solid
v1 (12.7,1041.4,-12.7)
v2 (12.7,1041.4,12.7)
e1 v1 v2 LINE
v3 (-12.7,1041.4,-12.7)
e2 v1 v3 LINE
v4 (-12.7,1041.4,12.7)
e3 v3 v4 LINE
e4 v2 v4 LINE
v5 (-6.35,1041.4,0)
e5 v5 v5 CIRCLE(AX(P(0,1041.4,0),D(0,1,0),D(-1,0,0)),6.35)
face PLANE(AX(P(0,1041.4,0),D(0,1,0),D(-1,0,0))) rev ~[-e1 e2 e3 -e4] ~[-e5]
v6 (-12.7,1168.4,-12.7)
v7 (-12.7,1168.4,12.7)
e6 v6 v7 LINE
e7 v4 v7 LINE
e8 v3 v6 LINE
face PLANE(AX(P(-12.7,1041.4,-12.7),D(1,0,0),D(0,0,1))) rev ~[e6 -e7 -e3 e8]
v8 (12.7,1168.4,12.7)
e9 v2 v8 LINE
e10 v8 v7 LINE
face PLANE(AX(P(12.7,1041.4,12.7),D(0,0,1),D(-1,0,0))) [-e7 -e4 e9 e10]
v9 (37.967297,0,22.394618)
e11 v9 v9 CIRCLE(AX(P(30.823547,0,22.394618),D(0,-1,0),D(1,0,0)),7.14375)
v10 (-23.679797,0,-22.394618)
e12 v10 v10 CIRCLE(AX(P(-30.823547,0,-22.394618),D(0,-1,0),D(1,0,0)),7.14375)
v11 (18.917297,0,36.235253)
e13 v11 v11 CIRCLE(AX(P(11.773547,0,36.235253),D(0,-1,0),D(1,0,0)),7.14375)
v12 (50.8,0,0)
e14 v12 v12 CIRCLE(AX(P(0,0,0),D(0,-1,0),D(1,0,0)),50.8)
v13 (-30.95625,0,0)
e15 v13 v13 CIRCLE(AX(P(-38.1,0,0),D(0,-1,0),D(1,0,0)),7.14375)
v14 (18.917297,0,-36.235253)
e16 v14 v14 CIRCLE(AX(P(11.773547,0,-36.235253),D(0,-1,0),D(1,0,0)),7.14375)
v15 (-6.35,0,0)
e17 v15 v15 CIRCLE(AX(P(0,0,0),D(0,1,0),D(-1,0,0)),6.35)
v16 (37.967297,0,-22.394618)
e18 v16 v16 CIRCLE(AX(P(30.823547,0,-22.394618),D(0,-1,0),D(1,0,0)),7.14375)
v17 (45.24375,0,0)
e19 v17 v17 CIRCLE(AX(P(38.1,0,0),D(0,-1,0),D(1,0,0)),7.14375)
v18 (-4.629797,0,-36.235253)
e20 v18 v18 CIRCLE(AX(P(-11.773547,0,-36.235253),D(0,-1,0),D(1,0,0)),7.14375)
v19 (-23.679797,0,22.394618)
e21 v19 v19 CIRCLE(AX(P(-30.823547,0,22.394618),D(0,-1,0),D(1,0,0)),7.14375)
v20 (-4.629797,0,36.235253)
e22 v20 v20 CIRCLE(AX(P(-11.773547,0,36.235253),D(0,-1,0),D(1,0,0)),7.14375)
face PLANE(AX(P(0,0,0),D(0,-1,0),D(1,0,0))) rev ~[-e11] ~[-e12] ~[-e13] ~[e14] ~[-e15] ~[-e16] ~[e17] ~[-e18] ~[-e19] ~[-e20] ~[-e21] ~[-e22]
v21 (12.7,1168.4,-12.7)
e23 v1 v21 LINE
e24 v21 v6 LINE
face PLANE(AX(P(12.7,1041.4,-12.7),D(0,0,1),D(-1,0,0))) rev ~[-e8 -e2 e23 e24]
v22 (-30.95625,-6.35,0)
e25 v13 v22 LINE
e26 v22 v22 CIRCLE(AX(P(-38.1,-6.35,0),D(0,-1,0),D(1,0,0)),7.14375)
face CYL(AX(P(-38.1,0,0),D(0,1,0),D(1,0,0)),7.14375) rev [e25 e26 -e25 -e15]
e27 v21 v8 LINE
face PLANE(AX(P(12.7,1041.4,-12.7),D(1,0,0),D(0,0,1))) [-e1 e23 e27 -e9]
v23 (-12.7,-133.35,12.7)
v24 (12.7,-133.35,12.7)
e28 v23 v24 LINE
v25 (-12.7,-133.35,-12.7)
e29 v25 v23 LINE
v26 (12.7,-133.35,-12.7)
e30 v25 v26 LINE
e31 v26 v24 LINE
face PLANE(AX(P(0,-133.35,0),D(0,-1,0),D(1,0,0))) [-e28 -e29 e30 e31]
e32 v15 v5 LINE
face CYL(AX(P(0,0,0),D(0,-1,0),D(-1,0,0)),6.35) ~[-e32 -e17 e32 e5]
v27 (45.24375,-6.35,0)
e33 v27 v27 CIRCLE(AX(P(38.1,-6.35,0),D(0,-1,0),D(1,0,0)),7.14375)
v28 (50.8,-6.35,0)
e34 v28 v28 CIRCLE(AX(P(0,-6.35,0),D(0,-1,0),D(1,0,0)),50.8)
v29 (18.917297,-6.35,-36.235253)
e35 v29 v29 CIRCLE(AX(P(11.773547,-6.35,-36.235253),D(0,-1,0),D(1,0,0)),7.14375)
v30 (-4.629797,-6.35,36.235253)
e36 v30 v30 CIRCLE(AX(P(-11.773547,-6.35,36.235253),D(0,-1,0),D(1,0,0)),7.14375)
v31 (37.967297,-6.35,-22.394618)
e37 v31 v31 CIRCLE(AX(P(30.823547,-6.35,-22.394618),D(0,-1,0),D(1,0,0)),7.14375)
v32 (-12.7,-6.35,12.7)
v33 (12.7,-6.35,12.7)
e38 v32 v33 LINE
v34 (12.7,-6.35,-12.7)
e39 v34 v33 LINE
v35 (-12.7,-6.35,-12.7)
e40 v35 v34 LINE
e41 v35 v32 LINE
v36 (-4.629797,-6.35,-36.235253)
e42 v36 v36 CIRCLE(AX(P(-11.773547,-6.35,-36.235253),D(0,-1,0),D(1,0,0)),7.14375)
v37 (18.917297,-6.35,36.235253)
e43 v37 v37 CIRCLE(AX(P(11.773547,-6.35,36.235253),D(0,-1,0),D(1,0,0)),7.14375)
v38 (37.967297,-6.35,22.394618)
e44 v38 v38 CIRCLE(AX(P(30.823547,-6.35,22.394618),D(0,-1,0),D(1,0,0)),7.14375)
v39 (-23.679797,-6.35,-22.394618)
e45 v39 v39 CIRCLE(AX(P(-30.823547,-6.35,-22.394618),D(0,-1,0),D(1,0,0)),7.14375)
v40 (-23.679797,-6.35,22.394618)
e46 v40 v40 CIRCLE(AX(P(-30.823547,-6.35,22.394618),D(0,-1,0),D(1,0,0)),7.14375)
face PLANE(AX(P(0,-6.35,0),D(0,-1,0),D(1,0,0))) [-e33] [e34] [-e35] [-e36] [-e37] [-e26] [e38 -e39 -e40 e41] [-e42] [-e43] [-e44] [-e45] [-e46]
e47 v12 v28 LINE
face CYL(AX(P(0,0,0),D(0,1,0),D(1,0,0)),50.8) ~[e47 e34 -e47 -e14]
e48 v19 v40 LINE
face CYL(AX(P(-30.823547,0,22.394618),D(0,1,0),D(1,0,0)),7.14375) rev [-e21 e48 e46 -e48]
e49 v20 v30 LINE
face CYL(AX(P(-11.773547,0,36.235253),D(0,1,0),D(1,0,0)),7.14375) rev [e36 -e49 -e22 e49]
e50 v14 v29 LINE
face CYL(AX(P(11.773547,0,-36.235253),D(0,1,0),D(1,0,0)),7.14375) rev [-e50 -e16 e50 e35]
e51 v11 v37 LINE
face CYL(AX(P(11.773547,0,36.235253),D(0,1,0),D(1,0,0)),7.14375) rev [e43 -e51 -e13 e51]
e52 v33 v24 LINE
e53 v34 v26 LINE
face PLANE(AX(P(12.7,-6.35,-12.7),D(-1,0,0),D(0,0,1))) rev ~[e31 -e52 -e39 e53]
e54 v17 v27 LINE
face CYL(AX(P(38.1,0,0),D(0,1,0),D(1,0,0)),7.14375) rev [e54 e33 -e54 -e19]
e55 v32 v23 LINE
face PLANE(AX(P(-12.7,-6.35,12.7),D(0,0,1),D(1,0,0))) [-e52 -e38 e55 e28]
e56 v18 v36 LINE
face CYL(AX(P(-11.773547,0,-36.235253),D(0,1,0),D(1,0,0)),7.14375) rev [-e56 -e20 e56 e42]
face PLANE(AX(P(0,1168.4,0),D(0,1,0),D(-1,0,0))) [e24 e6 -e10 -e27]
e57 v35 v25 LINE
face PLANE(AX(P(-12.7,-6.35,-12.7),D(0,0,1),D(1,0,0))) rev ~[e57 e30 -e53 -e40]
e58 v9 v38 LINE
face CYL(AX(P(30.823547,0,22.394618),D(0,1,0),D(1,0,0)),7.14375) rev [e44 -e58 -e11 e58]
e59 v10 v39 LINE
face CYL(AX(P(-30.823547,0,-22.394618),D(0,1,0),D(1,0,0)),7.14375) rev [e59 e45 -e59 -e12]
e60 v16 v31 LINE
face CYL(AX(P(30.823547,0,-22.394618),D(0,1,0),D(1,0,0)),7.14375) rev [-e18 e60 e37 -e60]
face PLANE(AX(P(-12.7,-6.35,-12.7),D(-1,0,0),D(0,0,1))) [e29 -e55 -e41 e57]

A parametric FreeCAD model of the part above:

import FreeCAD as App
import Part
import Sketcher
from FreeCAD import Vector
Q = App.Units.Quantity


def add_polygon(sketch, points):
    """Adds a closed chain of lines whose ends are joined by coincident constraints."""
    first, n = sketch.GeometryCount, len(points)
    for a, b in zip(points, points[1:] + points[:1]):
        sketch.addGeometry(Part.LineSegment(App.Vector(*a, 0), App.Vector(*b, 0)), False)
    for i in range(n):
        sketch.addConstraint(Sketcher.Constraint("Coincident", first + i, 2, first + (i + 1) % n, 1))

doc = App.newDocument("Part")
body = doc.addObject("PartDesign::Body", "Body")

# Sketch on XZ plane
sketch1 = body.newObject("Sketcher::SketchObject", "Sketch")
sketch1.AttachmentSupport = (doc.getObject("XZ_Plane"), [""])
sketch1.MapMode = "FlatFace"
sketch1.addGeometry([
    Part.Circle(Vector(0, 0, 0), Vector(0, 0, 1), 51),  # 0
    Part.Circle(Vector(-31, -22, 0), Vector(0, 0, 1), 7),  # 1
    Part.Circle(Vector(-12, -36, 0), Vector(0, 0, 1), 7),  # 2
    Part.Circle(Vector(12, -36, 0), Vector(0, 0, 1), 7),  # 3
    Part.Circle(Vector(31, -22, 0), Vector(0, 0, 1), 7),  # 4
    Part.Circle(Vector(-38, 0, 0), Vector(0, 0, 1), 7),  # 5
    Part.Circle(Vector(-31, 22, 0), Vector(0, 0, 1), 7),  # 6
    Part.Circle(Vector(-12, 36, 0), Vector(0, 0, 1), 7),  # 7
    Part.Circle(Vector(38, 0, 0), Vector(0, 0, 1), 7),  # 8
    Part.Circle(Vector(12, 36, 0), Vector(0, 0, 1), 7),  # 9
    Part.Circle(Vector(31, 22, 0), Vector(0, 0, 1), 7),  # 10
], False)
sketch1.addConstraint([
    Sketcher.Constraint("Coincident", 0, 3, -1, 1),
    Sketcher.Constraint("Equal", 1, 2),
    Sketcher.Constraint("Equal", 2, 3),
    Sketcher.Constraint("Equal", 3, 4),
    Sketcher.Constraint("Equal", 4, 5),
    Sketcher.Constraint("Equal", 5, 6),
    Sketcher.Constraint("Equal", 6, 7),
    Sketcher.Constraint("Equal", 7, 8),
    Sketcher.Constraint("Equal", 8, 9),
    Sketcher.Constraint("Equal", 9, 10),
    Sketcher.Constraint("Symmetric", 4, 3, 6, 3, -1, 1),
    Sketcher.Constraint("Symmetric", 3, 3, 7, 3, -1, 1),
    Sketcher.Constraint("Symmetric", 5, 3, 8, 3, -1, 1),
    Sketcher.Constraint("Symmetric", 2, 3, 9, 3, -1, 1),
    Sketcher.Constraint("Symmetric", 1, 3, 10, 3, -1, 1),
    Sketcher.Constraint("Symmetric", 2, 3, 3, 3, -2),
    Sketcher.Constraint("Symmetric", 1, 3, 4, 3, -2),
    Sketcher.Constraint("PointOnObject", 5, 3, -1),
    Sketcher.Constraint("Diameter", 0, Q("4 in")),
    Sketcher.Constraint("Diameter", 1, Q("0.5625 in")),
    Sketcher.Constraint("DistanceX", 5, 3, -1, 1, Q("1.5 in")),
    Sketcher.Constraint("DistanceX", 1, 3, 2, 3, Q("0.75 in")),
    Sketcher.Constraint("DistanceY", 1, 3, -1, 1, Q("22.394618 mm")),
    Sketcher.Constraint("DistanceY", 2, 3, 6, 3, Q("58.629871 mm")),
    Sketcher.Constraint("DistanceX", 1, 3, -1, 1, Q("30.823547 mm")),
])
pad1 = body.newObject("PartDesign::Pad", "Pad")
pad1.Profile = sketch1
pad1.Length = Q("0.25 in")
body2 = doc.addObject("PartDesign::Body", "Body001")

# Sketch on XZ plane
sketch2 = body2.newObject("Sketcher::SketchObject", "Sketch001")
sketch2.AttachmentSupport = (doc.getObject("XZ_Plane001"), [""])
sketch2.MapMode = "FlatFace"
sketch2.AttachmentOffset = App.Placement(Vector(0, 0, -41 * 25.4), App.Rotation())
add_polygon(sketch2, [(13, 13), (13, -13), (-13, -13), (-13, 13)])  # lines 0-3
sketch2.addConstraint([
    Sketcher.Constraint("Vertical", 0),
    Sketcher.Constraint("Horizontal", 1),
    Sketcher.Constraint("Vertical", 2),
    Sketcher.Constraint("Horizontal", 3),
    Sketcher.Constraint("Symmetric", 0, 2, 2, 2, -1, 1),
    Sketcher.Constraint("Equal", 3, 0),
    Sketcher.Constraint("DistanceX", 1, 2, 1, 1, Q("1 in")),
])
pad2 = body2.newObject("PartDesign::Pad", "Pad001")
pad2.Profile = sketch2
pad2.Length = Q("5 in")
pad2.Reversed = True
body.AllowCompound = True
doc.recompute()

boolean = body.newObject("PartDesign::Boolean", "Boolean")
boolean.Type = "Fuse"
boolean.addObjects([body2])

# Sketch on XZ plane
sketch3 = body.newObject("Sketcher::SketchObject", "Sketch002")
sketch3.AttachmentSupport = (doc.getObject("XZ_Plane"), [""])
sketch3.MapMode = "FlatFace"
sketch3.addGeometry(Part.Circle(Vector(0, 0, 0), Vector(0, 0, 1), 6), False)
sketch3.addConstraint([
    Sketcher.Constraint("Coincident", 0, 3, -1, 1),
    Sketcher.Constraint("Diameter", 0, Q("0.5 in")),
])
pad3 = body.newObject("PartDesign::Pad", "Pad002")
pad3.Profile = sketch3
pad3.Length = Q("41 in")
pad3.Reversed = True

# Sketch on XZ plane
sketch4 = body.newObject("Sketcher::SketchObject", "Sketch003")
sketch4.AttachmentSupport = (doc.getObject("XZ_Plane"), [""])
sketch4.MapMode = "FlatFace"
sketch4.AttachmentOffset = App.Placement(Vector(0, 0, 0.25 * 25.4), App.Rotation())
add_polygon(sketch4, [(-13, 13), (-13, -13), (13, -13), (13, 13)])  # lines 0-3
sketch4.addConstraint([
    Sketcher.Constraint("Vertical", 0),
    Sketcher.Constraint("Horizontal", 1),
    Sketcher.Constraint("Vertical", 2),
    Sketcher.Constraint("Horizontal", 3),
    Sketcher.Constraint("Symmetric", 0, 2, 2, 2, -1, 1),
    Sketcher.Constraint("Equal", 3, 0),
    Sketcher.Constraint("DistanceX", 1, 1, 1, 2, Q("1 in")),
])
pad4 = body.newObject("PartDesign::Pad", "Pad003")
pad4.Profile = sketch4
pad4.Length = Q("5 in")

doc.recompute()
